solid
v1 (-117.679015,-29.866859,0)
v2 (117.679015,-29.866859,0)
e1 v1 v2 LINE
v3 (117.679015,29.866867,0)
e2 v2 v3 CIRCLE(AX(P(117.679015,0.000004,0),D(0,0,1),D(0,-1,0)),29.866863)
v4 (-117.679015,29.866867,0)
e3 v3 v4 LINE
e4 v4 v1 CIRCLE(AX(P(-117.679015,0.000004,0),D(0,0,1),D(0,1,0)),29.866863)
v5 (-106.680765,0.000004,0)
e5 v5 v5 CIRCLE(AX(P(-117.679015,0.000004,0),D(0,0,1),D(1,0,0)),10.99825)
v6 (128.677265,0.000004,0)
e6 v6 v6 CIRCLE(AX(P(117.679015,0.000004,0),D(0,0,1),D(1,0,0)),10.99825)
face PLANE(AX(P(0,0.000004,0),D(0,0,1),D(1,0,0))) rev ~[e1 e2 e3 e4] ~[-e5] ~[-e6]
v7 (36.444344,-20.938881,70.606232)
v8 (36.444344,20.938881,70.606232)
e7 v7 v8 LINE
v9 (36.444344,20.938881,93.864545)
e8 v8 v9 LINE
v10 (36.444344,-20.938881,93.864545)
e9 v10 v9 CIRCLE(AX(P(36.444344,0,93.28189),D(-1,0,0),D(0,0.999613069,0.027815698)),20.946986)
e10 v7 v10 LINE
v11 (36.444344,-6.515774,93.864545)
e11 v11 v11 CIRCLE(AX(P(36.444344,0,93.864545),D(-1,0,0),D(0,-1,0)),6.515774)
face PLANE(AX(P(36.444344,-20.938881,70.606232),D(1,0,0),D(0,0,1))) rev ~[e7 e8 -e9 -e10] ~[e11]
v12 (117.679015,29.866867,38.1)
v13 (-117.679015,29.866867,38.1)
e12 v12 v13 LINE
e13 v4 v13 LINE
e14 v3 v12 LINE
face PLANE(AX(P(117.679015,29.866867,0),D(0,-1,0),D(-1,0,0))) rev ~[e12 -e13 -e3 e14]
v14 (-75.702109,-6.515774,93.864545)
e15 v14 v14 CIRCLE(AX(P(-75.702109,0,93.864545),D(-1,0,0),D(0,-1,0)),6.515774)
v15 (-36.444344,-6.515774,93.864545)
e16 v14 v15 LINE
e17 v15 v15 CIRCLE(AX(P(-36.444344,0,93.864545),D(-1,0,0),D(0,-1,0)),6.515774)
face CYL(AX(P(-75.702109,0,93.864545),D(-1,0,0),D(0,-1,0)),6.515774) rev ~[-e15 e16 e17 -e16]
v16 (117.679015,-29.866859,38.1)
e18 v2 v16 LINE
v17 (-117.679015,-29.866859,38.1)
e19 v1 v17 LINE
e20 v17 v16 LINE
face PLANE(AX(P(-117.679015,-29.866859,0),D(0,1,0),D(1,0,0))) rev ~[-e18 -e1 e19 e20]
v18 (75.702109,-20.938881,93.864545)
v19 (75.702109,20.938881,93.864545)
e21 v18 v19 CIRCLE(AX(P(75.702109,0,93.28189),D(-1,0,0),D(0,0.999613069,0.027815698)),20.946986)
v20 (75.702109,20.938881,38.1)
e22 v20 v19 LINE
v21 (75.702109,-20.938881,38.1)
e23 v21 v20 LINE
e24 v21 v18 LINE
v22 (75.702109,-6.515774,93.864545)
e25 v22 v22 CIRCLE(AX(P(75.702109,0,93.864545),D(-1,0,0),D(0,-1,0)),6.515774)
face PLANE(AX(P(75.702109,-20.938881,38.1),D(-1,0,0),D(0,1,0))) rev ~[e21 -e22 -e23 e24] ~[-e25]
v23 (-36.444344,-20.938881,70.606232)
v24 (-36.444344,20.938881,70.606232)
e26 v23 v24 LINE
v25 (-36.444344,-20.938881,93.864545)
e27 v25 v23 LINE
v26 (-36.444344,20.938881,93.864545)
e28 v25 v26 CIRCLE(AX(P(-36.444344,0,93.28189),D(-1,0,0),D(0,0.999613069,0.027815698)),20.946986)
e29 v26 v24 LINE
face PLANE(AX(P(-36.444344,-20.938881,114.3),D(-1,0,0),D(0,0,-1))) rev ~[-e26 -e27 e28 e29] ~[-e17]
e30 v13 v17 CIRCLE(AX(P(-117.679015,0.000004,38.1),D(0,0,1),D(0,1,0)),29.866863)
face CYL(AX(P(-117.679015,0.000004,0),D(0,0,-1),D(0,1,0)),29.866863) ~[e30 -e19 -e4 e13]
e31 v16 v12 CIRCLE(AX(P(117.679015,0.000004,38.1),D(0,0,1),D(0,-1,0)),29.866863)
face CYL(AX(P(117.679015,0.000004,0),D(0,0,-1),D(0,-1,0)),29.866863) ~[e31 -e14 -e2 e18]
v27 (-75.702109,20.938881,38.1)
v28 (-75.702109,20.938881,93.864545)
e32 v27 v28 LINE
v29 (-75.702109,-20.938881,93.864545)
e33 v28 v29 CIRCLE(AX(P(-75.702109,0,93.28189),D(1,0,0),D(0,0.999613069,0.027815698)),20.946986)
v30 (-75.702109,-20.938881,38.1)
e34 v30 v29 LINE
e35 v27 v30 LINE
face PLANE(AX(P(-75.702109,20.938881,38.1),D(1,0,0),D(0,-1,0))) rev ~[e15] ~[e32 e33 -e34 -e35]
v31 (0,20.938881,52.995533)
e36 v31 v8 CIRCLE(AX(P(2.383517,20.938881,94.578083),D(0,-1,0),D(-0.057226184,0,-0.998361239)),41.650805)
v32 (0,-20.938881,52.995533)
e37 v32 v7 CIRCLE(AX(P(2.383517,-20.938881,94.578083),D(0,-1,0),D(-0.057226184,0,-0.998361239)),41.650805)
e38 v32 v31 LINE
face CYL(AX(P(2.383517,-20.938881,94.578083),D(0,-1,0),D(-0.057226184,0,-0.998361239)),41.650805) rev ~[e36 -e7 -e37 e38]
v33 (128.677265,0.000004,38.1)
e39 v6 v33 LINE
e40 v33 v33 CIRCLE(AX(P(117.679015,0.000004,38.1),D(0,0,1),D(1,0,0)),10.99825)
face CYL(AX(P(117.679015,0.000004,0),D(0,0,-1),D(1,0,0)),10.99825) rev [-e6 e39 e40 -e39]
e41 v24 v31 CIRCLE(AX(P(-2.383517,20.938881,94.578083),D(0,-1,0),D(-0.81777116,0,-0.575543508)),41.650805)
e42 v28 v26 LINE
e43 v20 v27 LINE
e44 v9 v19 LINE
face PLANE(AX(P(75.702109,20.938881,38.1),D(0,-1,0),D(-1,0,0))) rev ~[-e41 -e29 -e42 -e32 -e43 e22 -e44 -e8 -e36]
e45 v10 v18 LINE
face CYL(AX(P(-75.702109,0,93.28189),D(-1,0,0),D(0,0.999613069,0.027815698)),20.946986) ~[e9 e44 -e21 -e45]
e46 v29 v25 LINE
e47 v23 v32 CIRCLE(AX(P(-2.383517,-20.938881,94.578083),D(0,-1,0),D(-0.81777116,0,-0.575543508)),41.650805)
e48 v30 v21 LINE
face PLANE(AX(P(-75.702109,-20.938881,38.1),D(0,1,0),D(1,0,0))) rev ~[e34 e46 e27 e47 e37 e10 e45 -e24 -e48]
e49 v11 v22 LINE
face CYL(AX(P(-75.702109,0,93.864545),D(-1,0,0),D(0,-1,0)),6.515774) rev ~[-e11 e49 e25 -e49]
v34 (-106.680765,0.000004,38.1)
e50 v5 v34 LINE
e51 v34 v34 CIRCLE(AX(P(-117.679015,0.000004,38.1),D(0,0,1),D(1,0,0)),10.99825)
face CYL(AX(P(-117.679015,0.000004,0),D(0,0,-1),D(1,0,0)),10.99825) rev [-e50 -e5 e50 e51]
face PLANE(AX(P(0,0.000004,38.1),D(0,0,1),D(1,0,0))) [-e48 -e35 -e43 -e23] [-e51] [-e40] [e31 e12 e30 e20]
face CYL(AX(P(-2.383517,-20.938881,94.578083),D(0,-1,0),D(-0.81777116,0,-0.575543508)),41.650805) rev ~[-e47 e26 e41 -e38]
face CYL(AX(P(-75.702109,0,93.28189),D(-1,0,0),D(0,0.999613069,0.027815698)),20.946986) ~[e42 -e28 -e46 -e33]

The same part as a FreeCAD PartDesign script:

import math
import FreeCAD as App
import Part
import Sketcher

V = App.Vector
Q = App.Units.Quantity


def add_polygon(sketch, points):
    """Adds a closed chain of lines whose ends are joined by coincident constraints."""
    first, n = sketch.GeometryCount, len(points)
    for a, b in zip(points, points[1:] + points[:1]):
        sketch.addGeometry(Part.LineSegment(App.Vector(*a, 0), App.Vector(*b, 0)), False)
    for i in range(n):
        sketch.addConstraint(Sketcher.Constraint("Coincident", first + i, 2, first + (i + 1) % n, 1))

doc = App.newDocument("Part")
params = doc.addObject("Spreadsheet::Sheet", "Params")
for row, (alias, value) in enumerate([
    ("pad1_length", "1.5 in"),
    ("pad2_length", "3 in"),
], start=1):
    params.set(f"A{row}", alias)
    params.set(f"B{row}", "=" + value)
    params.setAlias(f"B{row}", alias)

body = doc.addObject("PartDesign::Body", "Body")

sketch1 = body.newObject("Sketcher::SketchObject", "Sketch")
sketch1.AttachmentSupport = (doc.getObject("XY_Plane"), [""])
sketch1.MapMode = "FlatFace"
sketch1.addGeometry([
    Part.LineSegment(V(117.679015, 29.866867, 0), V(-117.679015, 29.866867, 0)),
    Part.ArcOfCircle(Part.Circle(V(-117.679015, 0.000004, 0), V(0, 0, 1), 29.866863), math.radians(90), math.radians(270)),
    Part.LineSegment(V(-117.679015, -29.866859, 0), V(117.679015, -29.866859, 0)),
    Part.ArcOfCircle(Part.Circle(V(117.679015, 0.000004, 0), V(0, 0, 1), 29.866863), math.radians(-90), math.radians(90)),
    Part.Circle(V(-117.679015, 0.000004, 0), V(0, 0, 1), 10.99825),
    Part.Circle(V(117.679015, 0.000004, 0), V(0, 0, 1), 10.99825),
], False)
sketch1.addConstraint([
    Sketcher.Constraint("Tangent", 0, 2, 1, 1),
    Sketcher.Constraint("Tangent", 1, 2, 2, 1),
    Sketcher.Constraint("Tangent", 2, 2, 3, 1),
    Sketcher.Constraint("Tangent", 3, 2, 0, 1),
    Sketcher.Constraint("Horizontal", 0),
    Sketcher.Constraint("Horizontal", 2),
    Sketcher.Constraint("Coincident", 4, 3, 1, 3),
    Sketcher.Constraint("Coincident", 5, 3, 3, 3),
    Sketcher.Constraint("Equal", 4, 5),
    Sketcher.Constraint("Symmetric", 1, 3, 3, 3, -1, 1),
    Sketcher.Constraint("Diameter", 4, 21.9965),
    Sketcher.Constraint("Radius", 1, 29.866863),
    Sketcher.Constraint("DistanceX", 0, 2, 0, 1, 235.35803),
])
pad1 = body.newObject("PartDesign::Pad", "Pad")
pad1.Profile = sketch1
pad1.setExpression("Length", "Params.pad1_length")

sketch2 = body.newObject("Sketcher::SketchObject", "Sketch001")
sketch2.AttachmentSupport = (doc.getObject("XY_Plane"), [""])
sketch2.MapMode = "FlatFace"
sketch2.AttachmentOffset = App.Placement(V(0, 0, 1.5 * 25.4), App.Rotation())
add_polygon(sketch2, [(-75.702109, 20.938881), (-75.702109, -20.938881), (75.702109, -20.938881), (75.702109, 20.938881)])
sketch2.addConstraint([
    Sketcher.Constraint("Vertical", 0),
    Sketcher.Constraint("Horizontal", 1),
    Sketcher.Constraint("Vertical", 2),
    Sketcher.Constraint("Horizontal", 3),
    Sketcher.Constraint("Symmetric", 0, 2, 2, 2, -1, 1),
    Sketcher.Constraint("DistanceY", 0, 2, 0, 1, 41.877762),
    Sketcher.Constraint("DistanceX", 1, 1, 1, 2, 151.404218),
])
pad2 = body.newObject("PartDesign::Pad", "Pad001")
pad2.Profile = sketch2
pad2.setExpression("Length", "Params.pad2_length")

sketch3 = body.newObject("Sketcher::SketchObject", "Sketch002")
sketch3.AttachmentSupport = (doc.getObject("YZ_Plane"), [""])
sketch3.MapMode = "FlatFace"
sketch3.AttachmentOffset = App.Placement(V(0, 0, -75.702109), App.Rotation())
sketch3.addGeometry([
    Part.Circle(V(0, 93.864545, 0), V(0, 0, 1), 6.515774),
    Part.ArcOfCircle(Part.Circle(V(0, 93.28189, 0), V(0, 0, 1), 20.946986), math.radians(1.593928), math.radians(178.406072)),
    Part.LineSegment(V(-20.938881, 93.864545, 0), V(-20.938881, 114.3, 0)),
    Part.LineSegment(V(-20.938881, 114.3, 0), V(20.938881, 114.3, 0)),
    Part.LineSegment(V(20.938881, 114.3, 0), V(20.938881, 93.864545, 0)),
], False)
sketch3.addConstraint([
    Sketcher.Constraint("Coincident", 1, 2, 2, 1),
    Sketcher.Constraint("Coincident", 2, 2, 3, 1),
    Sketcher.Constraint("Coincident", 3, 2, 4, 1),
    Sketcher.Constraint("Coincident", 4, 2, 1, 1),
    Sketcher.Constraint("Vertical", 2),
    Sketcher.Constraint("Horizontal", 3),
    Sketcher.Constraint("Vertical", 4),
    Sketcher.Constraint("Symmetric", 1, 2, 4, 2, -2),
    Sketcher.Constraint("PointOnObject", 0, 3, -2),
    Sketcher.Constraint("Horizontal", 0, 3, 1, 2),
    Sketcher.Constraint("DistanceY", -1, 1, 2, 2, Q("4.5 in")),
    Sketcher.Constraint("Diameter", 0, 13.031548),
    Sketcher.Constraint("Radius", 1, 20.946986),
    Sketcher.Constraint("DistanceX", 3, 1, 3, 2, 41.877762),
    Sketcher.Constraint("DistanceY", 2, 1, 2, 2, 20.435455),
])
pocket1 = body.newObject("PartDesign::Pocket", "Pocket")
pocket1.Profile = sketch3
pocket1.Type = "ThroughAll"
pocket1.Reversed = True

sketch4 = body.newObject("Sketcher::SketchObject", "Sketch003")
sketch4.AttachmentSupport = (doc.getObject("XZ_Plane"), [""])
sketch4.MapMode = "FlatFace"
sketch4.AttachmentOffset = App.Placement(V(0, 0, 20.938881), App.Rotation())
sketch4.addGeometry([
    Part.LineSegment(V(36.444344, 70.606232, 0), V(36.444344, 114.3, 0)),
    Part.LineSegment(V(36.444344, 114.3, 0), V(-36.444344, 114.3, 0)),
    Part.LineSegment(V(-36.444344, 114.3, 0), V(-36.444344, 70.606232, 0)),
    Part.ArcOfCircle(Part.Circle(V(-2.383517, 94.578083, 0), V(0, 0, 1), 41.650805), math.radians(-144.862297), math.radians(-86.719389)),
    Part.ArcOfCircle(Part.Circle(V(2.383517, 94.578083, 0), V(0, 0, 1), 41.650805), math.radians(-93.280611), math.radians(-35.137703)),
], False)
sketch4.addConstraint([
    Sketcher.Constraint("Coincident", 0, 2, 1, 1),
    Sketcher.Constraint("Coincident", 1, 2, 2, 1),
    Sketcher.Constraint("Coincident", 2, 2, 3, 1),
    Sketcher.Constraint("Coincident", 3, 2, 4, 1),
    Sketcher.Constraint("Coincident", 4, 2, 0, 1),
    Sketcher.Constraint("Vertical", 0),
    Sketcher.Constraint("Horizontal", 1),
    Sketcher.Constraint("Vertical", 2),
    Sketcher.Constraint("Equal", 3, 4),
    Sketcher.Constraint("Symmetric", 3, 3, 4, 3, -2),
    Sketcher.Constraint("Horizontal", 2, 2, 4, 2),
    Sketcher.Constraint("DistanceY", -1, 1, 0, 2, Q("4.5 in")),
    Sketcher.Constraint("Radius", 3, 41.650805),
    Sketcher.Constraint("DistanceX", 1, 2, 1, 1, 72.888688),
    Sketcher.Constraint("DistanceY", 3, 2, 2, 2, 17.610699),
    Sketcher.Constraint("DistanceY", 0, 1, 0, 2, 43.693768),
])
pocket2 = body.newObject("PartDesign::Pocket", "Pocket001")
pocket2.Profile = sketch4
pocket2.Type = "ThroughAll"

doc.recompute()
